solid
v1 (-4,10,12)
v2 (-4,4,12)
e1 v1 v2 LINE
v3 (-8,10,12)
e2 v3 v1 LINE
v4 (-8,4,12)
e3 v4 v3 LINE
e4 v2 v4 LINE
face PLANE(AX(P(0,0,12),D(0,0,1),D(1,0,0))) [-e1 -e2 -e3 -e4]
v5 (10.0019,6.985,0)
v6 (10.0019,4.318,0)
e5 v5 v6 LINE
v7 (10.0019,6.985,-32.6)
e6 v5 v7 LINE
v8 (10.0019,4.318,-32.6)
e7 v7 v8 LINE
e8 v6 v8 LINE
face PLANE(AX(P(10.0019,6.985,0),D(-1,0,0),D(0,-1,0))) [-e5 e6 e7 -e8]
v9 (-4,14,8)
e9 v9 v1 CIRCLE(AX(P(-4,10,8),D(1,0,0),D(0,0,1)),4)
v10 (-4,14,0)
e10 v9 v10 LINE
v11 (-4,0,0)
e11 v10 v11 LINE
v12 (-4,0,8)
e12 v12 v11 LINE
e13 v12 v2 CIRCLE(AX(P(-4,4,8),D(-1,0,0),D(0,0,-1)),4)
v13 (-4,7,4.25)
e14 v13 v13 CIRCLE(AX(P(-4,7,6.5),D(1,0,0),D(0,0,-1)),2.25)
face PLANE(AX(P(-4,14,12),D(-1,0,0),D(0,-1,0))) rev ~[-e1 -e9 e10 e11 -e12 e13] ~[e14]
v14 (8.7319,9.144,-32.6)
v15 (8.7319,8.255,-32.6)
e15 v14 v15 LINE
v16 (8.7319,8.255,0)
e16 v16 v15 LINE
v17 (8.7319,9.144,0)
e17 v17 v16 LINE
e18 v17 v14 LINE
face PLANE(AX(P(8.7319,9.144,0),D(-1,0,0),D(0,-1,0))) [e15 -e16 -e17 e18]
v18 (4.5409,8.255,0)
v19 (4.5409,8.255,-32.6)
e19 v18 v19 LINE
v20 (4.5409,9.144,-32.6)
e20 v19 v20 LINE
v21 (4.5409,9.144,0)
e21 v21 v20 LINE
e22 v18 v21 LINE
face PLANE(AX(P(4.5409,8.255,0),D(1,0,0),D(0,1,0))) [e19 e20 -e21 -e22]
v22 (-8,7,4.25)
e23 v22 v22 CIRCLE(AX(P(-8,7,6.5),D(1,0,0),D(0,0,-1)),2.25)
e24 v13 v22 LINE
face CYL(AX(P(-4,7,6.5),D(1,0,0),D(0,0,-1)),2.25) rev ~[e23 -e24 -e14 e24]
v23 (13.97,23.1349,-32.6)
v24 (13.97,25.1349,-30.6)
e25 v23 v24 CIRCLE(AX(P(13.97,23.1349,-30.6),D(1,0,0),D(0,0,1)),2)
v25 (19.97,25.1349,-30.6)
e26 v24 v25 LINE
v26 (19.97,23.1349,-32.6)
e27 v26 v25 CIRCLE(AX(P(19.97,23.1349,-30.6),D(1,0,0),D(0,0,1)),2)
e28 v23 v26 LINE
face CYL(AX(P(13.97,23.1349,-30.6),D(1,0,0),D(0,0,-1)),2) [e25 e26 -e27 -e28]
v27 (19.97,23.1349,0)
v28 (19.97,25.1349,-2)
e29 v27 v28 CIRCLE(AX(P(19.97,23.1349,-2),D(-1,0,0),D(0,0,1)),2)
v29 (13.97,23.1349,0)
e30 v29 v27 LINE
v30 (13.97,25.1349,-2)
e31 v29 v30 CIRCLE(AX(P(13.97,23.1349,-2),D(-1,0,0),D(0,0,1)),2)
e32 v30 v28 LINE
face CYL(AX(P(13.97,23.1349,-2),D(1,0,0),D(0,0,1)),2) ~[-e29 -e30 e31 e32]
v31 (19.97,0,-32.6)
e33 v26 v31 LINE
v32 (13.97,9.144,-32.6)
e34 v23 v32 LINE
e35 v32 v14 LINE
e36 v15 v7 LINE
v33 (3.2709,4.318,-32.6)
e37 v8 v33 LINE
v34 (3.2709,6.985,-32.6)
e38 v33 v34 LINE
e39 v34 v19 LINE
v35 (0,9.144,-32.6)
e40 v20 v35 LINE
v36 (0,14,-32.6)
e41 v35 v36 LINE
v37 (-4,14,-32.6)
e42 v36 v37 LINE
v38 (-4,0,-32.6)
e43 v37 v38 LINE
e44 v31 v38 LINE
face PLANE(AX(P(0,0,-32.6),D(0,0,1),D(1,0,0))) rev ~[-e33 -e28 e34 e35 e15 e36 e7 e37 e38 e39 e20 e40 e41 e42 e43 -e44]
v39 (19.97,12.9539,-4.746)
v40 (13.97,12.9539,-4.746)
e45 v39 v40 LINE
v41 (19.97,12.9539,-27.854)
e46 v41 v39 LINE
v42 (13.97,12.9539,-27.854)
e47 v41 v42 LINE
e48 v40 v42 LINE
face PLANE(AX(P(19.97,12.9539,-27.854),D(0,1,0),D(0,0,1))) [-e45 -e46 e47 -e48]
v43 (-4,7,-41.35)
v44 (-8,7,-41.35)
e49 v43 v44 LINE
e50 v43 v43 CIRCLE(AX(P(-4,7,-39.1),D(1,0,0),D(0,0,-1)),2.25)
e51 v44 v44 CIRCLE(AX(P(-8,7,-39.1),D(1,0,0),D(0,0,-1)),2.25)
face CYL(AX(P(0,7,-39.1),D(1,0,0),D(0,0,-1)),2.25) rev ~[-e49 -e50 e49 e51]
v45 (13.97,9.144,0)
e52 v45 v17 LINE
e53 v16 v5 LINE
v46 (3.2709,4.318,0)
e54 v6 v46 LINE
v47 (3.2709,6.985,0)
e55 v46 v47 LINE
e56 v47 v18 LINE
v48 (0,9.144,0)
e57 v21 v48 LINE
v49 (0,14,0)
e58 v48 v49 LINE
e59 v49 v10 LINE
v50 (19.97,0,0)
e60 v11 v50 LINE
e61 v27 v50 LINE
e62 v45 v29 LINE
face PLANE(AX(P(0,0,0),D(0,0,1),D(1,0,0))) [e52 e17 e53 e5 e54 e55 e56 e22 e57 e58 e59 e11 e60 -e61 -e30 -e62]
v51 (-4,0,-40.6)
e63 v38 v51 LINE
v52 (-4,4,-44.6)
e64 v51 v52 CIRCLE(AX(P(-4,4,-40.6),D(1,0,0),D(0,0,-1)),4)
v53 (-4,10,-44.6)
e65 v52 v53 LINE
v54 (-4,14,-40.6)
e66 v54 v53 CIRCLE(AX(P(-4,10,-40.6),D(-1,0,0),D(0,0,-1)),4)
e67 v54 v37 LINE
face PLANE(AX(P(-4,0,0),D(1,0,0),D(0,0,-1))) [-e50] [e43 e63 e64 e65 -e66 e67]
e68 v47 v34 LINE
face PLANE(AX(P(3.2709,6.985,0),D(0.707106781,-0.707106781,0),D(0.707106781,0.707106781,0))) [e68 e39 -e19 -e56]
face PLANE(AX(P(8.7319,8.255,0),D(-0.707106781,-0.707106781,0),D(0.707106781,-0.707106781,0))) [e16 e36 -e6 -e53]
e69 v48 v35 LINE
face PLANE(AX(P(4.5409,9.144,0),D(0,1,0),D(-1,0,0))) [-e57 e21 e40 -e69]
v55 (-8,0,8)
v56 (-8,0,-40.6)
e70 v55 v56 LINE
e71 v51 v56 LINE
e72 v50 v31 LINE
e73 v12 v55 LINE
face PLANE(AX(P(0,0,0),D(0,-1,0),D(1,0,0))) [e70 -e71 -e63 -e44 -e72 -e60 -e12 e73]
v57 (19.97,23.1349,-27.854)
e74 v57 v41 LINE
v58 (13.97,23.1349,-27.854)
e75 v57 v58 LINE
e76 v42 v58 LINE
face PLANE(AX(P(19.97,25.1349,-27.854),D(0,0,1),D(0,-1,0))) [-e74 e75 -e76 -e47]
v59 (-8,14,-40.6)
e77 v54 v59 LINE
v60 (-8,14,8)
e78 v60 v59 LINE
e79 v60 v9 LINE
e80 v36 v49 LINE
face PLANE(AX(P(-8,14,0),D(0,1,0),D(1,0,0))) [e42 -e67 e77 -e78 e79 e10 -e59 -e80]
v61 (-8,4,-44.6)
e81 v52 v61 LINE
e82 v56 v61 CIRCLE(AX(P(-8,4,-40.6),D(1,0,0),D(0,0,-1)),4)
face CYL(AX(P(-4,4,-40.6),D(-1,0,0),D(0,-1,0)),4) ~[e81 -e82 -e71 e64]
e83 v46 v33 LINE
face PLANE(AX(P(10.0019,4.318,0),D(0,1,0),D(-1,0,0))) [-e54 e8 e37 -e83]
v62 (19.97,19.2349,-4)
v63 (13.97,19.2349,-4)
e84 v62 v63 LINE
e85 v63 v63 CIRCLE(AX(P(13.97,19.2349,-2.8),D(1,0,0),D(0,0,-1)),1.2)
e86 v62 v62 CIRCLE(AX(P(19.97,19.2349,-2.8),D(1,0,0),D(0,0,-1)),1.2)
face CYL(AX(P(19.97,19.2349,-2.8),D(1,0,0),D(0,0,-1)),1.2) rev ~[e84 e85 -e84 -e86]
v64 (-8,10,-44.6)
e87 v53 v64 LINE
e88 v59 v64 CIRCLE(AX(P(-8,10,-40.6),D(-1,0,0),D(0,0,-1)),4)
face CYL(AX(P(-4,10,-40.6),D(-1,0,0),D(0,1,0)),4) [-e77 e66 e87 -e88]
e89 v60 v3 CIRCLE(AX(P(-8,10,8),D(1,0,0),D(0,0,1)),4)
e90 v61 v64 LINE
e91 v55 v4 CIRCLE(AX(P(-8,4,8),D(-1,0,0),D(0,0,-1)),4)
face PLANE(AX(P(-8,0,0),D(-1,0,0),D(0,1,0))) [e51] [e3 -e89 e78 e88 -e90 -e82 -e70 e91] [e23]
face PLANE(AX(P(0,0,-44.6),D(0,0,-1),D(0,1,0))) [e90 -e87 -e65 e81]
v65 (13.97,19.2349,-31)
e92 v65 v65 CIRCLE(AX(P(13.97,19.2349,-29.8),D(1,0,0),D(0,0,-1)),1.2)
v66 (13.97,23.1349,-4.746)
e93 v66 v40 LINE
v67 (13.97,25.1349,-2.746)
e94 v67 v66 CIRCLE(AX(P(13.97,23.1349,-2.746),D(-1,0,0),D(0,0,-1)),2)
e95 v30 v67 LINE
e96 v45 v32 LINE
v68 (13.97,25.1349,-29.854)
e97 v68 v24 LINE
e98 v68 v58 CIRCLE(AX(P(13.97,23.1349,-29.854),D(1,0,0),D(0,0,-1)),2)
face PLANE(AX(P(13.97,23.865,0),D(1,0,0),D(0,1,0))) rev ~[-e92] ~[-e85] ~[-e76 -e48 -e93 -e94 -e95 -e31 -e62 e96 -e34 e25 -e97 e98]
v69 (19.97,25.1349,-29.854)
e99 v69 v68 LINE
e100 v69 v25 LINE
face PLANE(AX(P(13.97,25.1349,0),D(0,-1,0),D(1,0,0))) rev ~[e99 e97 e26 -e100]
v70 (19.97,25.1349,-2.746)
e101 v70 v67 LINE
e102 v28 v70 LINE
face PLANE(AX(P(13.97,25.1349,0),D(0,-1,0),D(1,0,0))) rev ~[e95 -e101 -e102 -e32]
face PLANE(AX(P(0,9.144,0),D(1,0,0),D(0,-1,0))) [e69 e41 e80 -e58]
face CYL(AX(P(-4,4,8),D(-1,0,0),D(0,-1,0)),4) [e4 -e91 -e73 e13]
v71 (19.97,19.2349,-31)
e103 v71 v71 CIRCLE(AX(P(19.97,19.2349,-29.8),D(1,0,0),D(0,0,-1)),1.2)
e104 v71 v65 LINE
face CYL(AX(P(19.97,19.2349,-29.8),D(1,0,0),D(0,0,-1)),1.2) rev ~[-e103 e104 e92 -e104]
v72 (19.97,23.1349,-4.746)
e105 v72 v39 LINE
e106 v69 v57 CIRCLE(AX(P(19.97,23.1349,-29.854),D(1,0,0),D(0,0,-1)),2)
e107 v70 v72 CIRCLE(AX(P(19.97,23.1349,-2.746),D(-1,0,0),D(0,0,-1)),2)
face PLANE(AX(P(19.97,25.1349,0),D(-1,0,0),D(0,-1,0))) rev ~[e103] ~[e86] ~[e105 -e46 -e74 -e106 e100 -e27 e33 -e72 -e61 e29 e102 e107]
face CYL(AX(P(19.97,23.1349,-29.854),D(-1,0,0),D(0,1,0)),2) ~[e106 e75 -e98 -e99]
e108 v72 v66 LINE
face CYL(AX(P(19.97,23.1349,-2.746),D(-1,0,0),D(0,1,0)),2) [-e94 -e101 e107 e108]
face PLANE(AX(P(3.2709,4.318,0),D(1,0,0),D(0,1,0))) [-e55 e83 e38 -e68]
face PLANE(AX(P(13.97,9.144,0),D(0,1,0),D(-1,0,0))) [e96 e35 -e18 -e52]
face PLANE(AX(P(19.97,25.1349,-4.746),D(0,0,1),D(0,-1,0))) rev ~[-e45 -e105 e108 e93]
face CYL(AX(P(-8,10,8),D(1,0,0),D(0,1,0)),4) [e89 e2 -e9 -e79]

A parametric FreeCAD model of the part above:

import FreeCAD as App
import Part
import Sketcher
Q = App.Units.Quantity


def edges_at(feature, points):
    """Names of the edges that pass closest to the given points."""
    edges = feature.Shape.Edges
    near = lambda p: min(range(len(edges)), key=lambda i: edges[i].distToShape(Part.Vertex(*p))[0])
    return sorted({f"Edge{near(p) + 1}" for p in points})


def add_polygon(sketch, points):
    """Adds a closed chain of lines whose ends are joined by coincident constraints."""
    first, n = sketch.GeometryCount, len(points)
    for a, b in zip(points, points[1:] + points[:1]):
        sketch.addGeometry(Part.LineSegment(App.Vector(*a, 0), App.Vector(*b, 0)), False)
    for i in range(n):
        sketch.addConstraint(Sketcher.Constraint("Coincident", first + i, 2, first + (i + 1) % n, 1))

doc = App.newDocument("Part")
body = doc.addObject("PartDesign::Body", "Body")

# Sketch on XY plane
sketch1 = doc.addObject("Sketcher::SketchObject", "Sketch")
body.addObject(sketch1)
sketch1.AttachmentSupport = (doc.XY_Plane, [""])
sketch1.MapMode = "FlatFace"
add_polygon(sketch1, [(14, 25.1), (14, 9.1), (8.7, 9.1), (8.7, 8.3), (10, 7), (10, 4.3), (3.3, 4.3), (3.3, 7), (4.5, 8.3), (4.5, 9.1), (0, 9.1), (0, 0), (20, 0), (20, 25.1)])  # lines 0-13
sketch1.addConstraint([
    Sketcher.Constraint("Vertical", 0),
    Sketcher.Constraint("Horizontal", 1),
    Sketcher.Constraint("Vertical", 2),
    Sketcher.Constraint("Vertical", 4),
    Sketcher.Constraint("Horizontal", 5),
    Sketcher.Constraint("Vertical", 6),
    Sketcher.Constraint("Vertical", 8),
    Sketcher.Constraint("Horizontal", 9),
    Sketcher.Constraint("Vertical", 10),
    Sketcher.Constraint("Horizontal", 11),
    Sketcher.Constraint("Vertical", 12),
    Sketcher.Constraint("Horizontal", 13),
    Sketcher.Constraint("Coincident", 10, 2, -1, 1),
    Sketcher.Constraint("Perpendicular", 3, 7),
    Sketcher.Constraint("Horizontal", 3, 2, 6, 2),
    Sketcher.Constraint("Horizontal", 2, 2, 7, 2),
    Sketcher.Constraint("Horizontal", 1, 2, 8, 2),
    Sketcher.Constraint("Equal", 3, 7),
    Sketcher.Constraint("DistanceX", 13, 2, 13, 1, Q("6 mm")),
    Sketcher.Constraint("DistanceX", 11, 1, 11, 2, Q("19.97 mm")),
    Sketcher.Constraint("DistanceX", 1, 2, 1, 1, Q("5.238 mm")),
    Sketcher.Constraint("DistanceX", 5, 2, 5, 1, Q("6.731 mm")),
    Sketcher.Constraint("DistanceX", 9, 2, 9, 1, Q("4.541 mm")),
    Sketcher.Constraint("DistanceY", 0, 2, 0, 1, Q("15.991 mm")),
    Sketcher.Constraint("DistanceY", 2, 2, 2, 1, Q("0.889 mm")),
    Sketcher.Constraint("DistanceY", 4, 2, 4, 1, Q("2.667 mm")),
    Sketcher.Constraint("DistanceY", 10, 2, 10, 1, Q("9.144 mm")),
])
pad1 = doc.addObject("PartDesign::Pad", "Pad")
body.addObject(pad1)
pad1.Profile = sketch1
pad1.Length = 32.6
pad1.Reversed = True

# Sketch on YZ plane
sketch2 = doc.addObject("Sketcher::SketchObject", "Sketch001")
body.addObject(sketch2)
sketch2.AttachmentSupport = (doc.YZ_Plane, [""])
sketch2.MapMode = "FlatFace"
sketch2.AttachmentOffset = App.Placement(App.Vector(0, 0, 19.97), App.Rotation())
add_polygon(sketch2, [(25, -28), (25, -5), (13, -5), (13, -28)])  # lines 0-3
sketch2.addConstraint([
    Sketcher.Constraint("Vertical", 0),
    Sketcher.Constraint("Horizontal", 1),
    Sketcher.Constraint("Vertical", 2),
    Sketcher.Constraint("Horizontal", 3),
    Sketcher.Constraint("DistanceX", 1, 2, 1, 1, Q("12.181 mm")),
    Sketcher.Constraint("DistanceY", 0, 1, 0, 2, Q("23.108 mm")),
    Sketcher.Constraint("DistanceX", -1, 1, 0, 2, Q("25.135 mm")),
    Sketcher.Constraint("DistanceY", 0, 2, -1, 1, Q("4.746 mm")),
])
pocket1 = doc.addObject("PartDesign::Pocket", "Pocket")
body.addObject(pocket1)
pocket1.Profile = sketch2
pocket1.Length = 32.6

# Sketch on YZ plane
sketch3 = doc.addObject("Sketcher::SketchObject", "Sketch002")
body.addObject(sketch3)
sketch3.AttachmentSupport = (doc.YZ_Plane, [""])
sketch3.MapMode = "FlatFace"
sketch3.AttachmentOffset = App.Placement(App.Vector(0, 0, 19.97), App.Rotation())
sketch3.addGeometry([
    Part.Circle(App.Vector(19.2, -2.8, 0), App.Vector(0, 0, 1), 1.2),
    Part.Circle(App.Vector(19.2, -29.8, 0), App.Vector(0, 0, 1), 1.2),
], False)
sketch3.addConstraint([
    Sketcher.Constraint("Equal", 0, 1),
    Sketcher.Constraint("Vertical", 0, 3, 1, 3),
    Sketcher.Constraint("Diameter", 0, Q("2.4 mm")),
    Sketcher.Constraint("DistanceY", 1, 3, 0, 3, Q("27 mm")),
    Sketcher.Constraint("DistanceY", 0, 3, -1, 1, Q("2.8 mm")),
    Sketcher.Constraint("DistanceX", -1, 1, 0, 3, Q("19.235 mm")),
])
pocket2 = doc.addObject("PartDesign::Pocket", "Pocket001")
body.addObject(pocket2)
pocket2.Profile = sketch3
pocket2.Length = 32.6
doc.recompute()

fillet = doc.addObject("PartDesign::Fillet", "Fillet")
body.addObject(fillet)
fillet.Base = (pocket2, edges_at(pocket2, [
    (16.97, 25.135, 0),
    (16.97, 25.135, -4.746),
    (16.97, 25.135, -27.854),
    (16.97, 25.135, -32.6),
]))
fillet.Radius = 2

# Sketch on XY plane
sketch4 = doc.addObject("Sketcher::SketchObject", "Sketch003")
body.addObject(sketch4)
sketch4.AttachmentSupport = (doc.XY_Plane, [""])
sketch4.MapMode = "FlatFace"
add_polygon(sketch4, [(-8, 0), (0, 0), (0, 14), (-8, 14)])  # lines 0-3
sketch4.addConstraint([
    Sketcher.Constraint("Horizontal", 0),
    Sketcher.Constraint("Vertical", 1),
    Sketcher.Constraint("Horizontal", 2),
    Sketcher.Constraint("Vertical", 3),
    Sketcher.Constraint("Coincident", 0, 2, -1, 1),
    Sketcher.Constraint("DistanceX", 0, 1, 0, 2, Q("8 mm")),
    Sketcher.Constraint("DistanceY", 1, 1, 1, 2, Q("14 mm")),
])
pad2 = doc.addObject("PartDesign::Pad", "Pad001")
body.addObject(pad2)
pad2.Profile = sketch4
pad2.Type = "TwoLengths"
pad2.Length = 12
pad2.Length2 = 32.6

# Sketch on YZ plane
sketch5 = doc.addObject("Sketcher::SketchObject", "Sketch004")
body.addObject(sketch5)
sketch5.AttachmentSupport = (doc.YZ_Plane, [""])
sketch5.MapMode = "FlatFace"
add_polygon(sketch5, [(14, -32.6), (0, -32.6), (0, -44.6), (14, -44.6)])  # lines 0-3
sketch5.addGeometry(Part.Circle(App.Vector(7, -39.1, 0), App.Vector(0, 0, 1), 2.2), False)  # 4
sketch5.addGeometry(Part.Circle(App.Vector(7, 6.5, 0), App.Vector(0, 0, 1), 2.2), False)  # 5
sketch5.addConstraint([
    Sketcher.Constraint("Horizontal", 0),
    Sketcher.Constraint("Vertical", 1),
    Sketcher.Constraint("Horizontal", 2),
    Sketcher.Constraint("Vertical", 3),
    Sketcher.Constraint("Equal", 4, 5),
    Sketcher.Constraint("PointOnObject", 0, 2, -2),
    Sketcher.Constraint("Vertical", 4, 3, 5, 3),
    Sketcher.Constraint("Diameter", 4, Q("4.5 mm")),
    Sketcher.Constraint("DistanceX", -1, 1, 4, 3, Q("7 mm")),
    Sketcher.Constraint("DistanceX", 4, 3, 2, 2, Q("7 mm")),
    Sketcher.Constraint("DistanceY", 1, 2, 4, 3, Q("5.5 mm")),
    Sketcher.Constraint("DistanceY", 1, 2, 1, 1, Q("12 mm")),
    Sketcher.Constraint("DistanceY", 4, 3, -1, 1, Q("39.1 mm")),
    Sketcher.Constraint("DistanceY", -1, 1, 5, 3, Q("6.5 mm")),
])
pad3 = doc.addObject("PartDesign::Pad", "Pad002")
body.addObject(pad3)
pad3.Profile = sketch5
pad3.Length = 8
pad3.Reversed = True

# Sketch on XY plane
sketch6 = doc.addObject("Sketcher::SketchObject", "Sketch005")
body.addObject(sketch6)
sketch6.AttachmentSupport = (doc.XY_Plane, [""])
sketch6.MapMode = "FlatFace"
sketch6.AttachmentOffset = App.Placement(App.Vector(0, 0, 12), App.Rotation())
add_polygon(sketch6, [(0, 14), (-4, 14), (-4, 0), (0, 0)])  # lines 0-3
sketch6.addConstraint([
    Sketcher.Constraint("Horizontal", 0),
    Sketcher.Constraint("Vertical", 1),
    Sketcher.Constraint("Horizontal", 2),
    Sketcher.Constraint("Vertical", 3),
    Sketcher.Constraint("Coincident", 2, 2, -1, 1),
    Sketcher.Constraint("DistanceX", 0, 2, 0, 1, Q("4 mm")),
    Sketcher.Constraint("DistanceY", 1, 2, 1, 1, Q("14 mm")),
])
pocket3 = doc.addObject("PartDesign::Pocket", "Pocket002")
body.addObject(pocket3)
pocket3.Profile = sketch6
pocket3.Length = 12

# Sketch on YZ plane
sketch7 = doc.addObject("Sketcher::SketchObject", "Sketch006")
body.addObject(sketch7)
sketch7.AttachmentSupport = (doc.YZ_Plane, [""])
sketch7.MapMode = "FlatFace"
add_polygon(sketch7, [(14, -32.6), (0, -32.6), (0, -44.6), (14, -44.6)])  # lines 0-3
sketch7.addGeometry(Part.Circle(App.Vector(7, -39.1, 0), App.Vector(0, 0, 1), 2.2), False)  # 4
sketch7.addGeometry(Part.Circle(App.Vector(7, 6.5, 0), App.Vector(0, 0, 1), 2.2), False)  # 5
sketch7.addConstraint([
    Sketcher.Constraint("Horizontal", 0),
    Sketcher.Constraint("Vertical", 1),
    Sketcher.Constraint("Horizontal", 2),
    Sketcher.Constraint("Vertical", 3),
    Sketcher.Constraint("Equal", 4, 5),
    Sketcher.Constraint("PointOnObject", 0, 2, -2),
    Sketcher.Constraint("Vertical", 4, 3, 5, 3),
    Sketcher.Constraint("Diameter", 4, Q("4.5 mm")),
    Sketcher.Constraint("DistanceX", -1, 1, 4, 3, Q("7 mm")),
    Sketcher.Constraint("DistanceX", 4, 3, 2, 2, Q("7 mm")),
    Sketcher.Constraint("DistanceY", 1, 2, 4, 3, Q("5.5 mm")),
    Sketcher.Constraint("DistanceY", 1, 2, 1, 1, Q("12 mm")),
    Sketcher.Constraint("DistanceY", 4, 3, -1, 1, Q("39.1 mm")),
    Sketcher.Constraint("DistanceY", -1, 1, 5, 3, Q("6.5 mm")),
])
pocket4 = doc.addObject("PartDesign::Pocket", "Pocket003")
body.addObject(pocket4)
pocket4.Profile = sketch7
pocket4.Length = 4

# Sketch on YZ plane
sketch8 = doc.addObject("Sketcher::SketchObject", "Sketch007")
body.addObject(sketch8)
sketch8.AttachmentSupport = (doc.YZ_Plane, [""])
sketch8.MapMode = "FlatFace"
sketch8.AttachmentOffset = App.Placement(App.Vector(0, 0, -4), App.Rotation())
sketch8.addGeometry(Part.Circle(App.Vector(7, 6.5, 0), App.Vector(0, 0, 1), 2.2), False)
sketch8.addConstraint([
    Sketcher.Constraint("Diameter", 0, Q("4.5 mm")),
    Sketcher.Constraint("DistanceX", -1, 1, 0, 3, Q("7 mm")),
    Sketcher.Constraint("DistanceY", -1, 1, 0, 3, Q("6.5 mm")),
])
pocket5 = doc.addObject("PartDesign::Pocket", "Pocket004")
body.addObject(pocket5)
pocket5.Profile = sketch8
pocket5.Length = 4
doc.recompute()

fillet2 = doc.addObject("PartDesign::Fillet", "Fillet001")
body.addObject(fillet2)
fillet2.Base = (pocket5, edges_at(pocket5, [
    (-6, 14, -44.6),
    (-6, 0, -44.6),
    (-6, 14, 12),
    (-6, 0, 12),
]))
fillet2.Radius = 4

doc.recompute()
